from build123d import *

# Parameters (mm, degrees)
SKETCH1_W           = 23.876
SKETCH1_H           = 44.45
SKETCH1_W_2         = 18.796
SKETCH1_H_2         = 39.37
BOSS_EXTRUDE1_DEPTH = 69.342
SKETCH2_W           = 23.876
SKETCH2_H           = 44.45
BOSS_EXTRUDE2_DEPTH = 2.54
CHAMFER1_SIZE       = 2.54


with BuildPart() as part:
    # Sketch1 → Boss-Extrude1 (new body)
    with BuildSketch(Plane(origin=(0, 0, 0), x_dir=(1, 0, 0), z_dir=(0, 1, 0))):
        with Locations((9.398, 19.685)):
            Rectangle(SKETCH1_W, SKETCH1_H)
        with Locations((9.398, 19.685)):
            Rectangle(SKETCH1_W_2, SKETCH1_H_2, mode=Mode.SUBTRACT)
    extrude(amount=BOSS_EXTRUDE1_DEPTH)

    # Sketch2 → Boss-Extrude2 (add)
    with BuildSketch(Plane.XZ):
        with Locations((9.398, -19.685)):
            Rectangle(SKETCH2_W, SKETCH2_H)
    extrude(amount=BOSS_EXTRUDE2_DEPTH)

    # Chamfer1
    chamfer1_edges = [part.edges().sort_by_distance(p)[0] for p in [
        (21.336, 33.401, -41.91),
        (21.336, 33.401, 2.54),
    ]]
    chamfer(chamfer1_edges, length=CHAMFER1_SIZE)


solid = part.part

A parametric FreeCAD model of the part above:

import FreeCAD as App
import Part
import Sketcher
from FreeCAD import Vector
Q = App.Units.Quantity


def edges_at(feature, points):
    """Names of the edges that pass closest to the given points."""
    edges = feature.Shape.Edges
    near = lambda p: min(range(len(edges)), key=lambda i: edges[i].distToShape(Part.Vertex(*p))[0])
    return sorted({f"Edge{near(p) + 1}" for p in points})

doc = App.newDocument("Part")
body = doc.addObject("PartDesign::Body", "Body")

# Sketch on XZ plane
sketch1 = body.newObject("Sketcher::SketchObject", "Sketch")
sketch1.AttachmentSupport = (doc.getObject("XZ_Plane"), [""])
sketch1.MapMode = "FlatFace"
sketch1.addGeometry([
    Part.LineSegment(Vector(-2.54, -41.91, 0), Vector(-2.54, 2.54, 0)),  # 0
    Part.LineSegment(Vector(-2.54, 2.54, 0), Vector(21.336, 2.54, 0)),  # 1
    Part.LineSegment(Vector(21.336, 2.54, 0), Vector(21.336, -41.91, 0)),  # 2
    Part.LineSegment(Vector(21.336, -41.91, 0), Vector(-2.54, -41.91, 0)),  # 3
    Part.LineSegment(Vector(18.796, 0, 0), Vector(0, 0, 0)),  # 4
    Part.LineSegment(Vector(0, 0, 0), Vector(0, -39.37, 0)),  # 5
    Part.LineSegment(Vector(0, -39.37, 0), Vector(18.796, -39.37, 0)),  # 6
    Part.LineSegment(Vector(18.796, -39.37, 0), Vector(18.796, 0, 0)),  # 7
], False)
sketch1.addConstraint([
    Sketcher.Constraint("Coincident", 0, 2, 1, 1),
    Sketcher.Constraint("Coincident", 1, 2, 2, 1),
    Sketcher.Constraint("Coincident", 2, 2, 3, 1),
    Sketcher.Constraint("Coincident", 3, 2, 0, 1),
    Sketcher.Constraint("Coincident", 4, 2, 5, 1),
    Sketcher.Constraint("Coincident", 5, 2, 6, 1),
    Sketcher.Constraint("Coincident", 6, 2, 7, 1),
    Sketcher.Constraint("Coincident", 7, 2, 4, 1),
    Sketcher.Constraint("Vertical", 0),
    Sketcher.Constraint("Horizontal", 1),
    Sketcher.Constraint("Vertical", 2),
    Sketcher.Constraint("Horizontal", 3),
    Sketcher.Constraint("Horizontal", 4),
    Sketcher.Constraint("Vertical", 5),
    Sketcher.Constraint("Horizontal", 6),
    Sketcher.Constraint("Vertical", 7),
    Sketcher.Constraint("Coincident", 4, 2, -1, 1),
    Sketcher.Constraint("DistanceX", 1, 1, 1, 2, Q("0.94 in")),
    Sketcher.Constraint("DistanceX", 4, 2, 4, 1, Q("0.74 in")),
    Sketcher.Constraint("DistanceY", 0, 1, 0, 2, Q("1.75 in")),
    Sketcher.Constraint("DistanceY", 5, 2, 5, 1, Q("1.55 in")),
    Sketcher.Constraint("DistanceX", 0, 2, -1, 1, Q("0.1 in")),
    Sketcher.Constraint("DistanceY", -1, 1, 0, 2, Q("0.1 in")),
])
pad1 = body.newObject("PartDesign::Pad", "Pad")
pad1.Profile = sketch1
pad1.Length = Q("2.73 in")
pad1.Reversed = True

# Sketch on XZ plane
sketch2 = body.newObject("Sketcher::SketchObject", "Sketch001")
sketch2.AttachmentSupport = (doc.getObject("XZ_Plane"), [""])
sketch2.MapMode = "FlatFace"
sketch2.addGeometry([
    Part.LineSegment(Vector(-2.54, 2.54, 0), Vector(-2.54, -41.91, 0)),
    Part.LineSegment(Vector(-2.54, -41.91, 0), Vector(21.336, -41.91, 0)),
    Part.LineSegment(Vector(21.336, -41.91, 0), Vector(21.336, 2.54, 0)),
    Part.LineSegment(Vector(21.336, 2.54, 0), Vector(-2.54, 2.54, 0)),
], False)
sketch2.addConstraint([
    Sketcher.Constraint("Coincident", 0, 2, 1, 1),
    Sketcher.Constraint("Coincident", 1, 2, 2, 1),
    Sketcher.Constraint("Coincident", 2, 2, 3, 1),
    Sketcher.Constraint("Coincident", 3, 2, 0, 1),
    Sketcher.Constraint("Vertical", 0),
    Sketcher.Constraint("Horizontal", 1),
    Sketcher.Constraint("Vertical", 2),
    Sketcher.Constraint("Horizontal", 3),
    Sketcher.Constraint("DistanceX", 1, 1, 1, 2, Q("0.94 in")),
    Sketcher.Constraint("DistanceY", 0, 2, 0, 1, Q("1.75 in")),
    Sketcher.Constraint("DistanceX", 0, 2, -1, 1, Q("0.1 in")),
    Sketcher.Constraint("DistanceY", -1, 1, 2, 2, Q("0.1 in")),
])
pad2 = body.newObject("PartDesign::Pad", "Pad001")
pad2.Profile = sketch2
pad2.Length = Q("0.1 in")
doc.recompute()

chamfer = body.newObject("PartDesign::Chamfer", "Chamfer")
chamfer.Base = (pad2, edges_at(pad2, [(21.336, 33.401, -41.91), (21.336, 33.401, 2.54)]))
chamfer.Size = Q("0.1 in")

doc.recompute()
